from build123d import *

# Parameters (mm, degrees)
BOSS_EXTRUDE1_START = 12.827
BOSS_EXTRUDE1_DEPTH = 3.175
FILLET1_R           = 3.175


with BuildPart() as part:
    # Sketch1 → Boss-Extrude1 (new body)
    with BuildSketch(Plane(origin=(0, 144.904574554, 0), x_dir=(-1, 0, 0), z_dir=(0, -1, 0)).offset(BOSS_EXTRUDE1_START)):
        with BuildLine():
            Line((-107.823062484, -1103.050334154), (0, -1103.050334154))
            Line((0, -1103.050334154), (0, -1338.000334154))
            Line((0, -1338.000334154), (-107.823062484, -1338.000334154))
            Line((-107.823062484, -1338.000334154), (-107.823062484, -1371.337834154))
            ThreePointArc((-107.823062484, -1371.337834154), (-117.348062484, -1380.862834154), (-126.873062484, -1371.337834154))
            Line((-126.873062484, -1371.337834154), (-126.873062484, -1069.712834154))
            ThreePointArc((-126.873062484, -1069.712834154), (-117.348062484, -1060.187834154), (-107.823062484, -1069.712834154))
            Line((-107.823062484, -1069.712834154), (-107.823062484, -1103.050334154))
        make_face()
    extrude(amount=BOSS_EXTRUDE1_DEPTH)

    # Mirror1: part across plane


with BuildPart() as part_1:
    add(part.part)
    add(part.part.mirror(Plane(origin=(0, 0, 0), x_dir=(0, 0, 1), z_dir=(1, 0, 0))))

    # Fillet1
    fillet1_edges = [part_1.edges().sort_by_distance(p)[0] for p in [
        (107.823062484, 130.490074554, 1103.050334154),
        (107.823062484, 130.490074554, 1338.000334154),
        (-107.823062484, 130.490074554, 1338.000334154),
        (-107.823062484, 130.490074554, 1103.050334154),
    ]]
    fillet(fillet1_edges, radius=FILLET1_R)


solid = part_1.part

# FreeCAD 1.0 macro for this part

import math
import FreeCAD as App
import Part
import Sketcher

V = App.Vector
Q = App.Units.Quantity


def edges_at(feature, points):
    """Names of the edges that pass closest to the given points."""
    edges = feature.Shape.Edges
    near = lambda p: min(range(len(edges)), key=lambda i: edges[i].distToShape(Part.Vertex(*p))[0])
    return sorted({f"Edge{near(p) + 1}" for p in points})

doc = App.newDocument("Part")
body = doc.addObject("PartDesign::Body", "Body")

# Sketch on XZ plane
sketch1 = body.newObject("Sketcher::SketchObject", "Sketch")
sketch1.AttachmentSupport = (doc.getObject("XZ_Plane"), [""])
sketch1.MapMode = "FlatFace"
sketch1.AttachmentOffset = App.Placement(V(0, 0, -132.077575), App.Rotation())
sketch1.addGeometry([
    Part.LineSegment(V(0, 1103, 0), V(108, 1103, 0)),  # 0
    Part.LineSegment(V(108, 1103, 0), V(108, 1070, 0)),  # 1
    Part.ArcOfCircle(Part.Circle(V(117, 1070, 0), V(0, 0, 1), 10), math.radians(180), math.radians(360)),  # 2
    Part.LineSegment(V(127, 1070, 0), V(127, 1371, 0)),  # 3
    Part.ArcOfCircle(Part.Circle(V(117, 1371, 0), V(0, 0, 1), 10), math.radians(0), math.radians(180)),  # 4
    Part.LineSegment(V(108, 1371, 0), V(108, 1338, 0)),  # 5
    Part.LineSegment(V(108, 1338, 0), V(0, 1338, 0)),  # 6
    Part.LineSegment(V(0, 1338, 0), V(0, 1103, 0)),  # 7
], False)
sketch1.addConstraint([
    Sketcher.Constraint("Coincident", 0, 2, 1, 1),
    Sketcher.Constraint("Tangent", 1, 2, 2, 1),
    Sketcher.Constraint("Tangent", 2, 2, 3, 1),
    Sketcher.Constraint("Tangent", 3, 2, 4, 1),
    Sketcher.Constraint("Tangent", 4, 2, 5, 1),
    Sketcher.Constraint("Coincident", 5, 2, 6, 1),
    Sketcher.Constraint("Coincident", 6, 2, 7, 1),
    Sketcher.Constraint("Coincident", 7, 2, 0, 1),
    Sketcher.Constraint("Horizontal", 0),
    Sketcher.Constraint("Vertical", 1),
    Sketcher.Constraint("Vertical", 3),
    Sketcher.Constraint("Vertical", 5),
    Sketcher.Constraint("Horizontal", 6),
    Sketcher.Constraint("Vertical", 7),
    Sketcher.Constraint("Equal", 2, 4),
    Sketcher.Constraint("PointOnObject", 6, 2, -2),
    Sketcher.Constraint("Equal", 1, 5),
    Sketcher.Constraint("Radius", 2, Q("0.375 in")),
    Sketcher.Constraint("DistanceY", 7, 2, 7, 1, Q("9.25 in")),
    Sketcher.Constraint("DistanceY", 1, 2, 1, 1, Q("1.3125 in")),
    Sketcher.Constraint("DistanceX", 0, 1, 0, 2, 107.823062),
    Sketcher.Constraint("DistanceY", -1, 1, 2, 3, 1069.712834),
])
pad1 = body.newObject("PartDesign::Pad", "Pad")
pad1.Profile = sketch1
pad1.Length = Q("0.125 in")
body2 = doc.addObject("PartDesign::Body", "Body001")
doc.recompute()

body2.BaseFeature = body
doc.recompute()

mirroring = doc.addObject("Part::Mirroring", "Mirroring")
mirroring.Source = body
mirroring.Base = V(0, 0, 0)
mirroring.Normal = V(1, 0, 0)
body3 = doc.addObject("PartDesign::Body", "Body002")
body3.BaseFeature = mirroring
boolean = body2.newObject("PartDesign::Boolean", "Boolean")
boolean.Type = "Fuse"
boolean.addObjects([body3])
doc.recompute()

fillet = body2.newObject("PartDesign::Fillet", "Fillet")
fillet.Base = (boolean, edges_at(boolean, [
    (107.823, 130.49, 1103.05),
    (107.823, 130.49, 1338),
    (-107.823, 130.49, 1338),
    (-107.823, 130.49, 1103.05),
]))
fillet.Radius = Q("0.125 in")
mirroring.Visibility = False

doc.recompute()
